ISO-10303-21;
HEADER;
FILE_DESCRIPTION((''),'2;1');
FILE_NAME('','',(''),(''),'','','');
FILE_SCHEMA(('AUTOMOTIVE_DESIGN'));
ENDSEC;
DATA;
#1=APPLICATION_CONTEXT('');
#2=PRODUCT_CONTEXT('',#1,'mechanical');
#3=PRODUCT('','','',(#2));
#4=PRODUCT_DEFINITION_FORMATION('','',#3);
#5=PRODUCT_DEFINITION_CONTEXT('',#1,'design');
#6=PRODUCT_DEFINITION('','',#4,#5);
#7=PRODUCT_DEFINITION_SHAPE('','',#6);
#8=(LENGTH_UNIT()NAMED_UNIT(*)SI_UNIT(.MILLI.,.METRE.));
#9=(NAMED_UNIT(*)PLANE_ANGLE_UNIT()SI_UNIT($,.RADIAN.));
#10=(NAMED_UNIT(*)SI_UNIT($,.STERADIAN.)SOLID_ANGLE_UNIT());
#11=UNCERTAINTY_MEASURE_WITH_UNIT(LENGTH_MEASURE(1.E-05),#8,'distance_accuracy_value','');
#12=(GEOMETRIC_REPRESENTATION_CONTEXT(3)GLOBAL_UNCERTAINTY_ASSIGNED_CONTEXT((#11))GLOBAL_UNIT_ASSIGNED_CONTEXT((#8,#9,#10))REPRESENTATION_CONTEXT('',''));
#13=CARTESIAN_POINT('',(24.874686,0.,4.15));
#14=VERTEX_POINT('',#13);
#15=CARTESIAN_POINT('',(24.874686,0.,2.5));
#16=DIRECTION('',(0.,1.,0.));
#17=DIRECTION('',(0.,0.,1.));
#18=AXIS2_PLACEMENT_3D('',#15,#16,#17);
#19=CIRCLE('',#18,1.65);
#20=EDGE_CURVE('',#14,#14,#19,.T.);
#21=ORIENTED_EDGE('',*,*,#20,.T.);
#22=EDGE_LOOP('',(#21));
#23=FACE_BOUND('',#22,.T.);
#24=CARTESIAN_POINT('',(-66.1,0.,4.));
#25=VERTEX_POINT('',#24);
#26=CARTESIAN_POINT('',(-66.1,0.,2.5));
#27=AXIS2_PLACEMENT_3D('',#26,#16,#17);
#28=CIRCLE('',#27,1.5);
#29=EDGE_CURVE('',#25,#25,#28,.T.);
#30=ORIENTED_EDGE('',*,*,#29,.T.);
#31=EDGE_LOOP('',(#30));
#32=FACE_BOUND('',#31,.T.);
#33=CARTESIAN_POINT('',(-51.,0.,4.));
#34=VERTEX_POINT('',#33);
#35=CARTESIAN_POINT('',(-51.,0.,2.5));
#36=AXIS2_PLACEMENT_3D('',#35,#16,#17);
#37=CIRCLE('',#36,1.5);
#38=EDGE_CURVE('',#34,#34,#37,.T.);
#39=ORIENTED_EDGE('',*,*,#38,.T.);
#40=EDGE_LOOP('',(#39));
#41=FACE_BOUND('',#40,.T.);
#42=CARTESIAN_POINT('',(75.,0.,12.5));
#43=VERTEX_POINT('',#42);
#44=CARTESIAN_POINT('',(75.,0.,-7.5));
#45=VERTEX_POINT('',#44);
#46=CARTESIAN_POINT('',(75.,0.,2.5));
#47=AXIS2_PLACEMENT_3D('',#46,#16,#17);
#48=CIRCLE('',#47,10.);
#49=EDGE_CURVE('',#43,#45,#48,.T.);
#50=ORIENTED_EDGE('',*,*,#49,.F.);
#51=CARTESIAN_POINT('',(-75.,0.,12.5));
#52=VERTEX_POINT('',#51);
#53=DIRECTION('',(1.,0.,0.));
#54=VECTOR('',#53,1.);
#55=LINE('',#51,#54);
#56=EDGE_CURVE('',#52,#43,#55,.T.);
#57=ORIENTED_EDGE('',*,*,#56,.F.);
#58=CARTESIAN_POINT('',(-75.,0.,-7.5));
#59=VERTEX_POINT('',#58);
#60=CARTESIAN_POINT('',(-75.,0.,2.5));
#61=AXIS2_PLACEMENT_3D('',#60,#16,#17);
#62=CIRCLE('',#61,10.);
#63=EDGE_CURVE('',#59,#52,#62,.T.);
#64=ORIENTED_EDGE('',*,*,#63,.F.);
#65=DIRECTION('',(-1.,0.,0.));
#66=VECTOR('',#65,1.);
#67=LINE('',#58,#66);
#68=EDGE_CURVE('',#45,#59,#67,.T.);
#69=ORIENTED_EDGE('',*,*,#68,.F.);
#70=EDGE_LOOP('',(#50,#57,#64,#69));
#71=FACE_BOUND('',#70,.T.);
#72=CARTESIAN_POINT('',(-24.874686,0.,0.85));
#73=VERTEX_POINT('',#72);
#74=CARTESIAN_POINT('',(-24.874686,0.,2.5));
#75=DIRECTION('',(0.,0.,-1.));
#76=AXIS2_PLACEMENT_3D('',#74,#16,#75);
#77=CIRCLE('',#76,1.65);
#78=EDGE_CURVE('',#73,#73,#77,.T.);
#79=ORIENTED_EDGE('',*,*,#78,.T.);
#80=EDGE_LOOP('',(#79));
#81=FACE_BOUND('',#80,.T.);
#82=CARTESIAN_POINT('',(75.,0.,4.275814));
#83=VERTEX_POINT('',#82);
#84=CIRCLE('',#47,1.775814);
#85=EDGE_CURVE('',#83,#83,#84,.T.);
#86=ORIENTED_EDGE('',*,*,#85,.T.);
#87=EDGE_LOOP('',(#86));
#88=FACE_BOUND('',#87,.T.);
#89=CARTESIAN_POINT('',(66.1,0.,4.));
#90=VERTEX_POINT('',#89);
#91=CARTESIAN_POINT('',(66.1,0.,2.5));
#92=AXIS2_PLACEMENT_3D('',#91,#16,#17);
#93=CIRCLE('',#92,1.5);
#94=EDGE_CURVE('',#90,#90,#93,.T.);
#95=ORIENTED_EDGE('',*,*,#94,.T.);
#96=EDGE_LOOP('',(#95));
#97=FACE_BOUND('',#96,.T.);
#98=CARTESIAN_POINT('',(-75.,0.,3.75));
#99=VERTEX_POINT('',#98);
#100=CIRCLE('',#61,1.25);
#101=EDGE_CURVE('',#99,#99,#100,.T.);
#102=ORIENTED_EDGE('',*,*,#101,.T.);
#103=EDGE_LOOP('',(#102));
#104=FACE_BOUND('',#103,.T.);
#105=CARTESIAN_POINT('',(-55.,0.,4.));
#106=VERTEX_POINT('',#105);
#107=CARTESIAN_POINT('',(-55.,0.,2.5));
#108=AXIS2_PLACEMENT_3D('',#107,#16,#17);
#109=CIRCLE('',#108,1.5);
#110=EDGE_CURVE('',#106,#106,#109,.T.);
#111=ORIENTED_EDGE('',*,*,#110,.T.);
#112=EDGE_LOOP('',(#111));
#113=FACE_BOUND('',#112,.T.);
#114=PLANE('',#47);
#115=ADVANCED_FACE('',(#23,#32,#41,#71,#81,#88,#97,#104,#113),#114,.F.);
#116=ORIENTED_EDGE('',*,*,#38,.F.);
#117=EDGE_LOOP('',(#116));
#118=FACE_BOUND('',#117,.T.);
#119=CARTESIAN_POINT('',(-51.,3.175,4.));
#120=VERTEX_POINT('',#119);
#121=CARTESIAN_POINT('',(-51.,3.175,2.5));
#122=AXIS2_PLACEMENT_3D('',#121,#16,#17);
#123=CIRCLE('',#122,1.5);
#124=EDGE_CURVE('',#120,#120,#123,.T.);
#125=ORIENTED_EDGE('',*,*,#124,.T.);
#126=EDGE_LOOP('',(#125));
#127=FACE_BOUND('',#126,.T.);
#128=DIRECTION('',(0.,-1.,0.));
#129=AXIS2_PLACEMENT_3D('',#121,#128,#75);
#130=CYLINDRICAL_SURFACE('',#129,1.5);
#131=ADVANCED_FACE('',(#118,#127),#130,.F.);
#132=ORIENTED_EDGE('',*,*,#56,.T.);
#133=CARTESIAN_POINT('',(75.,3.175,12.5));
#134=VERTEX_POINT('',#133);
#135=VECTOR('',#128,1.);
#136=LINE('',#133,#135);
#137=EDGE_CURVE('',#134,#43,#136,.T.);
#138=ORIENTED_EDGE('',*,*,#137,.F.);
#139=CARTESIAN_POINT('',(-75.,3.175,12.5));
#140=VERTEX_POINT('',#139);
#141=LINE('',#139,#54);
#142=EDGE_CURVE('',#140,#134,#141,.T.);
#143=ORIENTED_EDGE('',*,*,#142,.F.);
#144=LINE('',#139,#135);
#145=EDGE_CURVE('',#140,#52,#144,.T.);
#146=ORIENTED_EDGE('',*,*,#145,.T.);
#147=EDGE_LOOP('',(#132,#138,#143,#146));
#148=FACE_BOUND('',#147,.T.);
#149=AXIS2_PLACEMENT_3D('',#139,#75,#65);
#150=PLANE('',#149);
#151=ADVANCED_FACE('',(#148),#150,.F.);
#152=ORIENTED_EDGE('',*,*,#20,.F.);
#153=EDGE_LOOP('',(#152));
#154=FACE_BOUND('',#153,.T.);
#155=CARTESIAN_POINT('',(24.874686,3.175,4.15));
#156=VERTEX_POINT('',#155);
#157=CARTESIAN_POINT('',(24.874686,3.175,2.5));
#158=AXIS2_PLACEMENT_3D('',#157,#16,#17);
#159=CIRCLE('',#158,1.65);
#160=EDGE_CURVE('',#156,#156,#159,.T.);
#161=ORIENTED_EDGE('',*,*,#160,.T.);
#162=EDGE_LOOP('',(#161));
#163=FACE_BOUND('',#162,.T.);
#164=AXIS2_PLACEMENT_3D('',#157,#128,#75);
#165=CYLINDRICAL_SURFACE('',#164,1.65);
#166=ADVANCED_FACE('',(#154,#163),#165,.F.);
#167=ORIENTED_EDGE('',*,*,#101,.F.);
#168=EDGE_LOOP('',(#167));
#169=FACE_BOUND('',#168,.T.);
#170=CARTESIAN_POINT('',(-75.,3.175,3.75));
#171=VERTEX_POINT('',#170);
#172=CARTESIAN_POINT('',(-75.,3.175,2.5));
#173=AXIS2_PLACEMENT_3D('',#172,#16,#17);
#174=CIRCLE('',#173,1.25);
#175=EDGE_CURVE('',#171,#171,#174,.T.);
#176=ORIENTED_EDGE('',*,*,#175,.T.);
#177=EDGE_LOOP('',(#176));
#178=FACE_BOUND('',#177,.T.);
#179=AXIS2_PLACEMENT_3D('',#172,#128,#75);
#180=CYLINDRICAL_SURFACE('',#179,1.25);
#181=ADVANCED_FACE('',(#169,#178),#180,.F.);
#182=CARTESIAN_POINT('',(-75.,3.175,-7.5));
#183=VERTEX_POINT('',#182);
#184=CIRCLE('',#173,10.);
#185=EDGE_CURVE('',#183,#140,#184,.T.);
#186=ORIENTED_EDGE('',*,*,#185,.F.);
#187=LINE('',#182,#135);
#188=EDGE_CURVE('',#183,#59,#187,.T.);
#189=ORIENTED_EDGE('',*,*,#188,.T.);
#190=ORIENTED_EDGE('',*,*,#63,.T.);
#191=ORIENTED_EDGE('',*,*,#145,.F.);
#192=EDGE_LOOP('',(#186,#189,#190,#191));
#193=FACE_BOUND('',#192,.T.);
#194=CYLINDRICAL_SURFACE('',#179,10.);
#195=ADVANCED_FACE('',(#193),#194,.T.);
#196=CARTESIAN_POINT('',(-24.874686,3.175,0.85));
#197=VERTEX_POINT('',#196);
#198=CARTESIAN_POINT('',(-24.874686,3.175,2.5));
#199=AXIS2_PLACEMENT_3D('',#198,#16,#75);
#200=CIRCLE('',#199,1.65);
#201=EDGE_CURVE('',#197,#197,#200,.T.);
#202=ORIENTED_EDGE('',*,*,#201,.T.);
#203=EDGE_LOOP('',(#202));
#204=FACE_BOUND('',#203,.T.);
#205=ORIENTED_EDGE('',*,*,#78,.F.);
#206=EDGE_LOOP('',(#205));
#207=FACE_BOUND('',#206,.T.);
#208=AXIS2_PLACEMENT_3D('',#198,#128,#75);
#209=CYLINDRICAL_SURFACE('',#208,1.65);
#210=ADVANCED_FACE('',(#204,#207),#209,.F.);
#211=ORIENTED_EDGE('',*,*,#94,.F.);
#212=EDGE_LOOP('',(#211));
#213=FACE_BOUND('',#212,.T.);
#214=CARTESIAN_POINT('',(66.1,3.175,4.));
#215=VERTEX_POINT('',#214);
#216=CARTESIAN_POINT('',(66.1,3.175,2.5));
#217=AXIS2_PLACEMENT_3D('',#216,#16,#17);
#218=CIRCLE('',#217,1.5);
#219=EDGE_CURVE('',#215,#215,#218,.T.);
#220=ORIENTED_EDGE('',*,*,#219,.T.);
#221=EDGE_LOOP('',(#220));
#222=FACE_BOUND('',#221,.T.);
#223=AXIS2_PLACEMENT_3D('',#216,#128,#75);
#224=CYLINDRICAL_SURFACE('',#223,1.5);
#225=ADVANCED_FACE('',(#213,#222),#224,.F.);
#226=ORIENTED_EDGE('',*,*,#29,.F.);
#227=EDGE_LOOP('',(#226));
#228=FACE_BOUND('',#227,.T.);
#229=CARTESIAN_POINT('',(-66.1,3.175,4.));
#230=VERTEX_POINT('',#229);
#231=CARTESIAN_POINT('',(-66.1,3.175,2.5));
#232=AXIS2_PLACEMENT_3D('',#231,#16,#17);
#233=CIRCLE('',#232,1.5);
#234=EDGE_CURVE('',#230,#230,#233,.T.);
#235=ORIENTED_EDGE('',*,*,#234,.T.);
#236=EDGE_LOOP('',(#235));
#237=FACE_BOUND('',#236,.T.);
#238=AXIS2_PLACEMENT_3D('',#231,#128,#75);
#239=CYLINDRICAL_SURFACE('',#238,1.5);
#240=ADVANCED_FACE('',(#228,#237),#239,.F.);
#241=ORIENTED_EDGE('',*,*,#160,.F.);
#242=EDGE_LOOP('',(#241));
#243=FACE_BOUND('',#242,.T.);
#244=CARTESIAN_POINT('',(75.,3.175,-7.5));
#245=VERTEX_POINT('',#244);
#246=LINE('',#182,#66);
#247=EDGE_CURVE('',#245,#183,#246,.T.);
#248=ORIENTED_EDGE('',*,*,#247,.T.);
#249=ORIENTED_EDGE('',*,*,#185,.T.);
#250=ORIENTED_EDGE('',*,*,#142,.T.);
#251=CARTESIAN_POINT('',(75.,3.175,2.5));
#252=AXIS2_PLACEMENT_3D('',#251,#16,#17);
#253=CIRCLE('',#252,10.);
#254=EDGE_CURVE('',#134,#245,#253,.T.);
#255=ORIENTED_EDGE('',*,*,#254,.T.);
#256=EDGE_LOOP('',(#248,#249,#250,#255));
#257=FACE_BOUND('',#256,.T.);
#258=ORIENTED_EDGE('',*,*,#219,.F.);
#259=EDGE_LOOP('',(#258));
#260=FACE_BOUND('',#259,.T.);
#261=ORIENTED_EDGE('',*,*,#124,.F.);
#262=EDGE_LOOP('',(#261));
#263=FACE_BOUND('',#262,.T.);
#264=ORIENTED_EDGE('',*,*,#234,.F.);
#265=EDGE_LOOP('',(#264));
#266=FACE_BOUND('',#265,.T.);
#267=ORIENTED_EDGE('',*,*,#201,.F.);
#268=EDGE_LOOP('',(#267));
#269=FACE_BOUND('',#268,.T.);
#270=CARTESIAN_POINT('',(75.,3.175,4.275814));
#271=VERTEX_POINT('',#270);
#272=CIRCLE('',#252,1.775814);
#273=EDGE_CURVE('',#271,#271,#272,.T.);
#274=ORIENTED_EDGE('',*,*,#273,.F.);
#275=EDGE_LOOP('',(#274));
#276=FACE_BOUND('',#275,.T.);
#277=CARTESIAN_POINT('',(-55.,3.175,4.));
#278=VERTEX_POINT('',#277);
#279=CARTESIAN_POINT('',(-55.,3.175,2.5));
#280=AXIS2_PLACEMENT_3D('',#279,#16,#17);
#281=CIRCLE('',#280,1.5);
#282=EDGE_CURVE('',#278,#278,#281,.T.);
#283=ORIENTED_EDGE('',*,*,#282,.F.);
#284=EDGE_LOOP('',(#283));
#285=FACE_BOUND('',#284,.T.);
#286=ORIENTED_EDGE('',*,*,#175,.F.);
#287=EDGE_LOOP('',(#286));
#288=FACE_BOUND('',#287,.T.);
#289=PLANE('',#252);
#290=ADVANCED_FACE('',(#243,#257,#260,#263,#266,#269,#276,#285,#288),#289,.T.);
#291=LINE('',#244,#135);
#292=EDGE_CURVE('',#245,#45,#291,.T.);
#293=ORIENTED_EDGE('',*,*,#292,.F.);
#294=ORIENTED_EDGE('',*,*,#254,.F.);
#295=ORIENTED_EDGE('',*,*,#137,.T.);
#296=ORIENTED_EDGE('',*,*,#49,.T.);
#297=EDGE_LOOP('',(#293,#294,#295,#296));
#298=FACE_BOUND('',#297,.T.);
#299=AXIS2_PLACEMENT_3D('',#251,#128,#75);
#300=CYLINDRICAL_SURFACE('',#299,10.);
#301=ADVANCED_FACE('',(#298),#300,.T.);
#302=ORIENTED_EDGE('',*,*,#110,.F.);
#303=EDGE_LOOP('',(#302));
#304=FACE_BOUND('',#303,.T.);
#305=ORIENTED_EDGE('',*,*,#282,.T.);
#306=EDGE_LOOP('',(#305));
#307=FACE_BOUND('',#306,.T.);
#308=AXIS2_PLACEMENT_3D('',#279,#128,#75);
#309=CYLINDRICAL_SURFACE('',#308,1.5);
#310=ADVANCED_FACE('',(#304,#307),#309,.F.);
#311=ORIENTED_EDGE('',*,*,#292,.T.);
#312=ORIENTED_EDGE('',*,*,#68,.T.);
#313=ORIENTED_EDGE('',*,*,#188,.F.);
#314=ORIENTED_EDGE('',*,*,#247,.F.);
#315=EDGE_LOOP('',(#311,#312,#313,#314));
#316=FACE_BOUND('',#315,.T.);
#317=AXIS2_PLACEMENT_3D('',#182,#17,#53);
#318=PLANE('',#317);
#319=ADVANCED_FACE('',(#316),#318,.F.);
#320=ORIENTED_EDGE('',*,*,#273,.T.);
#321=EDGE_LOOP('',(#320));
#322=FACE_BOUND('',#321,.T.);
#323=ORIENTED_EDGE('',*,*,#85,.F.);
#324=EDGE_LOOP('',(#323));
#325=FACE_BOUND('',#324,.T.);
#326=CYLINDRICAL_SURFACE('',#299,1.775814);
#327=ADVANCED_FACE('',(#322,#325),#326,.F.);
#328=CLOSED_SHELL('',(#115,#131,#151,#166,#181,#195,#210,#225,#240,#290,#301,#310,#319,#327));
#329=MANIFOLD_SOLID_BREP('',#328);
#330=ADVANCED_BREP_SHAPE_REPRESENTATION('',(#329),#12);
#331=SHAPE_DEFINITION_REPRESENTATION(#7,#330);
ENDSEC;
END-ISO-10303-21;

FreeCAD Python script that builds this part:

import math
import FreeCAD as App
import Part
import Sketcher

V = App.Vector
Q = App.Units.Quantity

doc = App.newDocument("Part")
body = doc.addObject("PartDesign::Body", "Body")

# Sketch on XZ plane
sketch1 = doc.addObject("Sketcher::SketchObject", "Sketch")
body.addObject(sketch1)
sketch1.AttachmentSupport = (doc.XZ_Plane, [""])
sketch1.MapMode = "FlatFace"
sketch1.addGeometry([
    Part.LineSegment(V(75, -7.5, 0), V(-75, -7.5, 0)),  # 0
    Part.ArcOfCircle(Part.Circle(V(-75, 2.5, 0), V(0, 0, 1), 10), math.radians(90), math.radians(270)),  # 1
    Part.LineSegment(V(-75, 12.5, 0), V(75, 12.5, 0)),  # 2
    Part.ArcOfCircle(Part.Circle(V(75, 2.5, 0), V(0, 0, 1), 10), math.radians(-90), math.radians(90)),  # 3
    Part.Circle(V(75, 2.5, 0), V(0, 0, 1), 1.8),  # 4
    Part.Circle(V(66.1, 2.5, 0), V(0, 0, 1), 1.5),  # 5
    Part.Circle(V(24.9, 2.5, 0), V(0, 0, 1), 1.6),  # 6
    Part.Circle(V(-24.9, 2.5, 0), V(0, 0, 1), 1.6),  # 7
    Part.Circle(V(-51, 2.5, 0), V(0, 0, 1), 1.5),  # 8
    Part.Circle(V(-55, 2.5, 0), V(0, 0, 1), 1.5),  # 9
    Part.Circle(V(-66.1, 2.5, 0), V(0, 0, 1), 1.5),  # 10
    Part.Circle(V(-75, 2.5, 0), V(0, 0, 1), 1.2),  # 11
], False)
sketch1.addConstraint([
    Sketcher.Constraint("Tangent", 0, 2, 1, 2),
    Sketcher.Constraint("Tangent", 1, 1, 2, 1),
    Sketcher.Constraint("Tangent", 2, 2, 3, 2),
    Sketcher.Constraint("Tangent", 3, 1, 0, 1),
    Sketcher.Constraint("Horizontal", 0),
    Sketcher.Constraint("Horizontal", 2),
    Sketcher.Constraint("Coincident", 4, 3, 3, 3),
    Sketcher.Constraint("Coincident", 11, 3, 1, 3),
    Sketcher.Constraint("Equal", 6, 7),
    Sketcher.Constraint("Equal", 5, 8),
    Sketcher.Constraint("Equal", 8, 9),
    Sketcher.Constraint("Equal", 9, 10),
    Sketcher.Constraint("Symmetric", 6, 3, 7, 3, -2),
    Sketcher.Constraint("Symmetric", 5, 3, 10, 3, -2),
    Sketcher.Constraint("Horizontal", 4, 3, 5, 3),
    Sketcher.Constraint("Horizontal", 5, 3, 6, 3),
    Sketcher.Constraint("Horizontal", 7, 3, 8, 3),
    Sketcher.Constraint("Horizontal", 8, 3, 9, 3),
    Sketcher.Constraint("Diameter", 5, Q("3 mm")),
    Sketcher.Constraint("Radius", 1, Q("10 mm")),
    Sketcher.Constraint("Diameter", 6, Q("3.3 mm")),
    Sketcher.Constraint("Diameter", 11, Q("2.5 mm")),
    Sketcher.Constraint("DistanceX", 0, 2, 0, 1, Q("150 mm")),
    Sketcher.Constraint("DistanceX", 1, 3, -1, 1, Q("75 mm")),
    Sketcher.Constraint("DistanceX", 8, 3, -1, 1, Q("51 mm")),
    Sketcher.Constraint("DistanceX", 9, 3, -1, 1, Q("55 mm")),
    Sketcher.Constraint("DistanceY", -1, 1, 1, 3, Q("2.5 mm")),
    Sketcher.Constraint("DistanceX", -1, 1, 5, 3, Q("66.1 mm")),
    Sketcher.Constraint("Diameter", 4, Q("3.551628 mm")),
    Sketcher.Constraint("DistanceX", 7, 3, 6, 3, Q("49.749372 mm")),
])
pad1 = doc.addObject("PartDesign::Pad", "Pad")
body.addObject(pad1)
pad1.Profile = sketch1
pad1.Length = 3.175
pad1.Reversed = True

doc.recompute()
